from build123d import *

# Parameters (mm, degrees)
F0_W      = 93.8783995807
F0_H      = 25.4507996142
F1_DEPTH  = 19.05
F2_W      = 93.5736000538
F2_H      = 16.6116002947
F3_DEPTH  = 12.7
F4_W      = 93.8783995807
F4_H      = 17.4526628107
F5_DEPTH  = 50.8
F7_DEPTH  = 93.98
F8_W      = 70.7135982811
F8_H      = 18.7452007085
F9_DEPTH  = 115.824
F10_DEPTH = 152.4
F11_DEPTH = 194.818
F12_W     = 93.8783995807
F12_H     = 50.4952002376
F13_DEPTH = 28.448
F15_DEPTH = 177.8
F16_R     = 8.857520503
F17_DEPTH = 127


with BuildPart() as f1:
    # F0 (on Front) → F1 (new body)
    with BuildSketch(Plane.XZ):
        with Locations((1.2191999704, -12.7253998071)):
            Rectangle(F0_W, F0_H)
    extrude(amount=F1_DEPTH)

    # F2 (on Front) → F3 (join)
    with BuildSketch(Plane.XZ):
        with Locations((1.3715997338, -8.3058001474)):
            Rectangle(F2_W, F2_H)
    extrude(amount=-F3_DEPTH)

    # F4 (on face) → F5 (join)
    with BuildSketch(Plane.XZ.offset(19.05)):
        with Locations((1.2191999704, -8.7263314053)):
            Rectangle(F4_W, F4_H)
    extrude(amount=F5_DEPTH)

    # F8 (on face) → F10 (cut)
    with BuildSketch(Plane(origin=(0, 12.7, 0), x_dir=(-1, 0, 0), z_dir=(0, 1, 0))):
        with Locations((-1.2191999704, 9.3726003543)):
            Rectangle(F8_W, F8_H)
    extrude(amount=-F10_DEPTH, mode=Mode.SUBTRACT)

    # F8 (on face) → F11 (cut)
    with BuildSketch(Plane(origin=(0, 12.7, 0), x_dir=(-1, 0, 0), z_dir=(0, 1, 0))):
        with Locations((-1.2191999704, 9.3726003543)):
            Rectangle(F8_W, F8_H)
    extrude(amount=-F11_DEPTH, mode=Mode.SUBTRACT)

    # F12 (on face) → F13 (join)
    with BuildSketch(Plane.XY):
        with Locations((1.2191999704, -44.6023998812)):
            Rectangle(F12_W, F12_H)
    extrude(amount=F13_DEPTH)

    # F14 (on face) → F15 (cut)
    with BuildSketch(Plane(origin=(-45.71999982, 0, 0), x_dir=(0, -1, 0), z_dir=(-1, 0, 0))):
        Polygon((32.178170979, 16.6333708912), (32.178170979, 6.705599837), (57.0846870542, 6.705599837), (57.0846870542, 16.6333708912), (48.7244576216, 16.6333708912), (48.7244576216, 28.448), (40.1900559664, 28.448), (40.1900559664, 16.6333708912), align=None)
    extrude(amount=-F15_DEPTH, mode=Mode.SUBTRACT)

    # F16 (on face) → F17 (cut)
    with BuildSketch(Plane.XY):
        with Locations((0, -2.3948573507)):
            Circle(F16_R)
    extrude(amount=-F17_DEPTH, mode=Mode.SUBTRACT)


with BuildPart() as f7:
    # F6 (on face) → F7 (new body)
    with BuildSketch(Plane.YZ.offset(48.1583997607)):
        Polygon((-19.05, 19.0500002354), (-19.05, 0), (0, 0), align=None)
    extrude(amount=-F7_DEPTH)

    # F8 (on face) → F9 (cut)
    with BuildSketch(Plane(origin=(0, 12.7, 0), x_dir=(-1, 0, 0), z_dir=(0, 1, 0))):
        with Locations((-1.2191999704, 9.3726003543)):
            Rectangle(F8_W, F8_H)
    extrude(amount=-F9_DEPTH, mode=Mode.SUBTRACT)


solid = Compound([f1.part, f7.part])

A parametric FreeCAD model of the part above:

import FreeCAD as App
import Part
import Sketcher
Q = App.Units.Quantity


def add_polygon(sketch, points):
    """Adds a closed chain of lines whose ends are joined by coincident constraints."""
    first, n = sketch.GeometryCount, len(points)
    for a, b in zip(points, points[1:] + points[:1]):
        sketch.addGeometry(Part.LineSegment(App.Vector(*a, 0), App.Vector(*b, 0)), False)
    for i in range(n):
        sketch.addConstraint(Sketcher.Constraint("Coincident", first + i, 2, first + (i + 1) % n, 1))

doc = App.newDocument("Part")
body = doc.addObject("PartDesign::Body", "Body")

# Sketch on XZ plane
sketch1 = body.newObject("Sketcher::SketchObject", "Sketch")
sketch1.AttachmentSupport = (doc.getObject("XZ_Plane"), [""])
sketch1.MapMode = "FlatFace"
add_polygon(sketch1, [(-46, 0), (-46, -25), (48, -25), (48, 0)])  # lines 0-3
sketch1.addConstraint([
    Sketcher.Constraint("Vertical", 0),
    Sketcher.Constraint("Horizontal", 1),
    Sketcher.Constraint("Vertical", 2),
    Sketcher.Constraint("Horizontal", 3),
    Sketcher.Constraint("PointOnObject", 2, 2, -1),
    Sketcher.Constraint("DistanceX", 0, 2, -1, 1, Q("1.8 in")),
    Sketcher.Constraint("DistanceX", 1, 1, 1, 2, Q("3.696 in")),
    Sketcher.Constraint("DistanceY", 0, 2, 0, 1, Q("1.002 in")),
])
pad1 = body.newObject("PartDesign::Pad", "Pad")
pad1.Profile = sketch1
pad1.Length = Q("0.75 in")

# Sketch on XZ plane
sketch2 = body.newObject("Sketcher::SketchObject", "Sketch001")
sketch2.AttachmentSupport = (doc.getObject("XZ_Plane"), [""])
sketch2.MapMode = "FlatFace"
add_polygon(sketch2, [(-45, 0), (-45, -17), (48, -17), (48, 0)])  # lines 0-3
sketch2.addConstraint([
    Sketcher.Constraint("Vertical", 0),
    Sketcher.Constraint("Horizontal", 1),
    Sketcher.Constraint("Vertical", 2),
    Sketcher.Constraint("Horizontal", 3),
    Sketcher.Constraint("PointOnObject", 2, 2, -1),
    Sketcher.Constraint("DistanceX", 1, 1, 1, 2, Q("3.684 in")),
    Sketcher.Constraint("DistanceY", 0, 2, 0, 1, Q("0.654 in")),
    Sketcher.Constraint("DistanceX", 0, 2, -1, 1, Q("1.788 in")),
])
pad2 = body.newObject("PartDesign::Pad", "Pad001")
pad2.Profile = sketch2
pad2.Length = Q("0.5 in")
pad2.Reversed = True

# Sketch on XZ plane
sketch3 = body.newObject("Sketcher::SketchObject", "Sketch002")
sketch3.AttachmentSupport = (doc.getObject("XZ_Plane"), [""])
sketch3.MapMode = "FlatFace"
sketch3.AttachmentOffset = App.Placement(App.Vector(0, 0, 0.75 * 25.4), App.Rotation())
add_polygon(sketch3, [(-46, 0), (-46, -17), (48, -17), (48, 0)])  # lines 0-3
sketch3.addConstraint([
    Sketcher.Constraint("Vertical", 0),
    Sketcher.Constraint("Horizontal", 1),
    Sketcher.Constraint("Vertical", 2),
    Sketcher.Constraint("Horizontal", 3),
    Sketcher.Constraint("PointOnObject", 2, 2, -1),
    Sketcher.Constraint("DistanceX", 0, 2, -1, 1, Q("1.8 in")),
    Sketcher.Constraint("DistanceX", 1, 1, 1, 2, Q("3.696 in")),
    Sketcher.Constraint("DistanceY", 0, 2, 0, 1, Q("17.452663 mm")),
])
pad3 = body.newObject("PartDesign::Pad", "Pad002")
pad3.Profile = sketch3
pad3.Length = Q("2 in")

# Sketch on XZ plane
sketch4 = body.newObject("Sketcher::SketchObject", "Sketch003")
sketch4.AttachmentSupport = (doc.getObject("XZ_Plane"), [""])
sketch4.MapMode = "FlatFace"
sketch4.AttachmentOffset = App.Placement(App.Vector(0, 0, -0.5 * 25.4), App.Rotation())
add_polygon(sketch4, [(37, 19), (37, 0), (-34, 0), (-34, 19)])  # lines 0-3
sketch4.addConstraint([
    Sketcher.Constraint("Vertical", 0),
    Sketcher.Constraint("Horizontal", 1),
    Sketcher.Constraint("Vertical", 2),
    Sketcher.Constraint("Horizontal", 3),
    Sketcher.Constraint("PointOnObject", 0, 2, -1),
    Sketcher.Constraint("DistanceX", 1, 2, 1, 1, Q("2.7839999 in")),
    Sketcher.Constraint("DistanceY", 0, 2, 0, 1, Q("0.738 in")),
    Sketcher.Constraint("DistanceX", -1, 1, 0, 2, Q("1.44 in")),
])
pocket1 = body.newObject("PartDesign::Pocket", "Pocket")
pocket1.Profile = sketch4
pocket1.Length = Q("6 in")
pocket1.Reversed = True

# Sketch on XZ plane
sketch5 = body.newObject("Sketcher::SketchObject", "Sketch004")
sketch5.AttachmentSupport = (doc.getObject("XZ_Plane"), [""])
sketch5.MapMode = "FlatFace"
sketch5.AttachmentOffset = App.Placement(App.Vector(0, 0, -0.5 * 25.4), App.Rotation())
add_polygon(sketch5, [(37, 19), (37, 0), (-34, 0), (-34, 19)])  # lines 0-3
sketch5.addConstraint([
    Sketcher.Constraint("Vertical", 0),
    Sketcher.Constraint("Horizontal", 1),
    Sketcher.Constraint("Vertical", 2),
    Sketcher.Constraint("Horizontal", 3),
    Sketcher.Constraint("PointOnObject", 0, 2, -1),
    Sketcher.Constraint("DistanceX", 1, 2, 1, 1, Q("2.7839999 in")),
    Sketcher.Constraint("DistanceY", 0, 2, 0, 1, Q("0.738 in")),
    Sketcher.Constraint("DistanceX", -1, 1, 0, 2, Q("1.44 in")),
])
pocket2 = body.newObject("PartDesign::Pocket", "Pocket001")
pocket2.Profile = sketch5
pocket2.Length = Q("7.67 in")
pocket2.Reversed = True

# Sketch on XY plane
sketch6 = body.newObject("Sketcher::SketchObject", "Sketch005")
sketch6.AttachmentSupport = (doc.getObject("XY_Plane"), [""])
sketch6.MapMode = "FlatFace"
add_polygon(sketch6, [(-46, -19), (-46, -70), (48, -70), (48, -19)])  # lines 0-3
sketch6.addConstraint([
    Sketcher.Constraint("Vertical", 0),
    Sketcher.Constraint("Horizontal", 1),
    Sketcher.Constraint("Vertical", 2),
    Sketcher.Constraint("Horizontal", 3),
    Sketcher.Constraint("DistanceX", 0, 2, -1, 1, Q("1.8 in")),
    Sketcher.Constraint("DistanceX", 1, 1, 1, 2, Q("3.696 in")),
    Sketcher.Constraint("DistanceY", 0, 2, 0, 1, Q("1.988 in")),
    Sketcher.Constraint("DistanceY", 0, 2, -1, 1, Q("2.75 in")),
])
pad4 = body.newObject("PartDesign::Pad", "Pad003")
pad4.Profile = sketch6
pad4.Length = Q("1.12 in")

# Sketch on YZ plane
sketch7 = body.newObject("Sketcher::SketchObject", "Sketch006")
sketch7.AttachmentSupport = (doc.getObject("YZ_Plane"), [""])
sketch7.MapMode = "FlatFace"
sketch7.AttachmentOffset = App.Placement(App.Vector(0, 0, -1.8 * 25.4), App.Rotation())
add_polygon(sketch7, [(-32, 17), (-32, 7), (-57, 7), (-57, 17), (-49, 17), (-49, 28), (-40, 28), (-40, 17)])  # lines 0-7
sketch7.addConstraint([
    Sketcher.Constraint("Vertical", 0),
    Sketcher.Constraint("Horizontal", 1),
    Sketcher.Constraint("Vertical", 2),
    Sketcher.Constraint("Horizontal", 3),
    Sketcher.Constraint("Vertical", 4),
    Sketcher.Constraint("Horizontal", 5),
    Sketcher.Constraint("Vertical", 6),
    Sketcher.Constraint("Horizontal", 7),
    Sketcher.Constraint("Horizontal", 3, 2, 6, 2),
    Sketcher.Constraint("DistanceX", 5, 1, 5, 2, Q("0.3360001 in")),
    Sketcher.Constraint("DistanceY", -1, 1, 4, 2, Q("1.12 in")),
    Sketcher.Constraint("DistanceY", -1, 1, 0, 2, Q("0.264 in")),
    Sketcher.Constraint("DistanceX", 3, 1, 3, 2, Q("8.360229 mm")),
    Sketcher.Constraint("DistanceY", 0, 2, 0, 1, Q("9.927771 mm")),
    Sketcher.Constraint("DistanceX", 1, 2, 1, 1, Q("24.906516 mm")),
    Sketcher.Constraint("DistanceX", 0, 2, -1, 1, Q("32.178171 mm")),
])
pocket3 = body.newObject("PartDesign::Pocket", "Pocket002")
pocket3.Profile = sketch7
pocket3.Length = Q("7 in")
pocket3.Reversed = True

# Sketch on XY plane
sketch8 = body.newObject("Sketcher::SketchObject", "Sketch007")
sketch8.AttachmentSupport = (doc.getObject("XY_Plane"), [""])
sketch8.MapMode = "FlatFace"
sketch8.addGeometry(Part.Circle(App.Vector(0, -2, 0), App.Vector(0, 0, 1), 9), False)
sketch8.addConstraint([
    Sketcher.Constraint("PointOnObject", 0, 3, -2),
    Sketcher.Constraint("Diameter", 0, Q("17.715041 mm")),
    Sketcher.Constraint("DistanceY", 0, 3, -1, 1, Q("2.394857 mm")),
])
pocket4 = body.newObject("PartDesign::Pocket", "Pocket003")
pocket4.Profile = sketch8
pocket4.Length = Q("5 in")
body2 = doc.addObject("PartDesign::Body", "Body001")

# Sketch on YZ plane
sketch9 = body2.newObject("Sketcher::SketchObject", "Sketch008")
sketch9.AttachmentSupport = (doc.getObject("YZ_Plane001"), [""])
sketch9.MapMode = "FlatFace"
sketch9.AttachmentOffset = App.Placement(App.Vector(0, 0, 1.896 * 25.4), App.Rotation())
add_polygon(sketch9, [(-19, 19), (-19, 0), (0, 0)])  # lines 0-2
sketch9.addConstraint([
    Sketcher.Constraint("Vertical", 0),
    Sketcher.Constraint("Horizontal", 1),
    Sketcher.Constraint("Coincident", 1, 2, -1, 1),
    Sketcher.Constraint("Equal", 1, 0),
    Sketcher.Constraint("DistanceX", 1, 1, 1, 2, Q("0.75 in")),
])
pad5 = body2.newObject("PartDesign::Pad", "Pad004")
pad5.Profile = sketch9
pad5.Length = Q("3.7 in")
pad5.Reversed = True

# Sketch on XZ plane
sketch10 = body2.newObject("Sketcher::SketchObject", "Sketch009")
sketch10.AttachmentSupport = (doc.getObject("XZ_Plane001"), [""])
sketch10.MapMode = "FlatFace"
sketch10.AttachmentOffset = App.Placement(App.Vector(0, 0, -0.5 * 25.4), App.Rotation())
add_polygon(sketch10, [(37, 19), (37, 0), (-34, 0), (-34, 19)])  # lines 0-3
sketch10.addConstraint([
    Sketcher.Constraint("Vertical", 0),
    Sketcher.Constraint("Horizontal", 1),
    Sketcher.Constraint("Vertical", 2),
    Sketcher.Constraint("Horizontal", 3),
    Sketcher.Constraint("PointOnObject", 0, 2, -1),
    Sketcher.Constraint("DistanceX", 1, 2, 1, 1, Q("2.7839999 in")),
    Sketcher.Constraint("DistanceY", 0, 2, 0, 1, Q("0.738 in")),
    Sketcher.Constraint("DistanceX", -1, 1, 0, 2, Q("1.44 in")),
])
pocket5 = body2.newObject("PartDesign::Pocket", "Pocket004")
pocket5.Profile = sketch10
pocket5.Length = Q("4.56 in")
pocket5.Reversed = True

doc.recompute()
